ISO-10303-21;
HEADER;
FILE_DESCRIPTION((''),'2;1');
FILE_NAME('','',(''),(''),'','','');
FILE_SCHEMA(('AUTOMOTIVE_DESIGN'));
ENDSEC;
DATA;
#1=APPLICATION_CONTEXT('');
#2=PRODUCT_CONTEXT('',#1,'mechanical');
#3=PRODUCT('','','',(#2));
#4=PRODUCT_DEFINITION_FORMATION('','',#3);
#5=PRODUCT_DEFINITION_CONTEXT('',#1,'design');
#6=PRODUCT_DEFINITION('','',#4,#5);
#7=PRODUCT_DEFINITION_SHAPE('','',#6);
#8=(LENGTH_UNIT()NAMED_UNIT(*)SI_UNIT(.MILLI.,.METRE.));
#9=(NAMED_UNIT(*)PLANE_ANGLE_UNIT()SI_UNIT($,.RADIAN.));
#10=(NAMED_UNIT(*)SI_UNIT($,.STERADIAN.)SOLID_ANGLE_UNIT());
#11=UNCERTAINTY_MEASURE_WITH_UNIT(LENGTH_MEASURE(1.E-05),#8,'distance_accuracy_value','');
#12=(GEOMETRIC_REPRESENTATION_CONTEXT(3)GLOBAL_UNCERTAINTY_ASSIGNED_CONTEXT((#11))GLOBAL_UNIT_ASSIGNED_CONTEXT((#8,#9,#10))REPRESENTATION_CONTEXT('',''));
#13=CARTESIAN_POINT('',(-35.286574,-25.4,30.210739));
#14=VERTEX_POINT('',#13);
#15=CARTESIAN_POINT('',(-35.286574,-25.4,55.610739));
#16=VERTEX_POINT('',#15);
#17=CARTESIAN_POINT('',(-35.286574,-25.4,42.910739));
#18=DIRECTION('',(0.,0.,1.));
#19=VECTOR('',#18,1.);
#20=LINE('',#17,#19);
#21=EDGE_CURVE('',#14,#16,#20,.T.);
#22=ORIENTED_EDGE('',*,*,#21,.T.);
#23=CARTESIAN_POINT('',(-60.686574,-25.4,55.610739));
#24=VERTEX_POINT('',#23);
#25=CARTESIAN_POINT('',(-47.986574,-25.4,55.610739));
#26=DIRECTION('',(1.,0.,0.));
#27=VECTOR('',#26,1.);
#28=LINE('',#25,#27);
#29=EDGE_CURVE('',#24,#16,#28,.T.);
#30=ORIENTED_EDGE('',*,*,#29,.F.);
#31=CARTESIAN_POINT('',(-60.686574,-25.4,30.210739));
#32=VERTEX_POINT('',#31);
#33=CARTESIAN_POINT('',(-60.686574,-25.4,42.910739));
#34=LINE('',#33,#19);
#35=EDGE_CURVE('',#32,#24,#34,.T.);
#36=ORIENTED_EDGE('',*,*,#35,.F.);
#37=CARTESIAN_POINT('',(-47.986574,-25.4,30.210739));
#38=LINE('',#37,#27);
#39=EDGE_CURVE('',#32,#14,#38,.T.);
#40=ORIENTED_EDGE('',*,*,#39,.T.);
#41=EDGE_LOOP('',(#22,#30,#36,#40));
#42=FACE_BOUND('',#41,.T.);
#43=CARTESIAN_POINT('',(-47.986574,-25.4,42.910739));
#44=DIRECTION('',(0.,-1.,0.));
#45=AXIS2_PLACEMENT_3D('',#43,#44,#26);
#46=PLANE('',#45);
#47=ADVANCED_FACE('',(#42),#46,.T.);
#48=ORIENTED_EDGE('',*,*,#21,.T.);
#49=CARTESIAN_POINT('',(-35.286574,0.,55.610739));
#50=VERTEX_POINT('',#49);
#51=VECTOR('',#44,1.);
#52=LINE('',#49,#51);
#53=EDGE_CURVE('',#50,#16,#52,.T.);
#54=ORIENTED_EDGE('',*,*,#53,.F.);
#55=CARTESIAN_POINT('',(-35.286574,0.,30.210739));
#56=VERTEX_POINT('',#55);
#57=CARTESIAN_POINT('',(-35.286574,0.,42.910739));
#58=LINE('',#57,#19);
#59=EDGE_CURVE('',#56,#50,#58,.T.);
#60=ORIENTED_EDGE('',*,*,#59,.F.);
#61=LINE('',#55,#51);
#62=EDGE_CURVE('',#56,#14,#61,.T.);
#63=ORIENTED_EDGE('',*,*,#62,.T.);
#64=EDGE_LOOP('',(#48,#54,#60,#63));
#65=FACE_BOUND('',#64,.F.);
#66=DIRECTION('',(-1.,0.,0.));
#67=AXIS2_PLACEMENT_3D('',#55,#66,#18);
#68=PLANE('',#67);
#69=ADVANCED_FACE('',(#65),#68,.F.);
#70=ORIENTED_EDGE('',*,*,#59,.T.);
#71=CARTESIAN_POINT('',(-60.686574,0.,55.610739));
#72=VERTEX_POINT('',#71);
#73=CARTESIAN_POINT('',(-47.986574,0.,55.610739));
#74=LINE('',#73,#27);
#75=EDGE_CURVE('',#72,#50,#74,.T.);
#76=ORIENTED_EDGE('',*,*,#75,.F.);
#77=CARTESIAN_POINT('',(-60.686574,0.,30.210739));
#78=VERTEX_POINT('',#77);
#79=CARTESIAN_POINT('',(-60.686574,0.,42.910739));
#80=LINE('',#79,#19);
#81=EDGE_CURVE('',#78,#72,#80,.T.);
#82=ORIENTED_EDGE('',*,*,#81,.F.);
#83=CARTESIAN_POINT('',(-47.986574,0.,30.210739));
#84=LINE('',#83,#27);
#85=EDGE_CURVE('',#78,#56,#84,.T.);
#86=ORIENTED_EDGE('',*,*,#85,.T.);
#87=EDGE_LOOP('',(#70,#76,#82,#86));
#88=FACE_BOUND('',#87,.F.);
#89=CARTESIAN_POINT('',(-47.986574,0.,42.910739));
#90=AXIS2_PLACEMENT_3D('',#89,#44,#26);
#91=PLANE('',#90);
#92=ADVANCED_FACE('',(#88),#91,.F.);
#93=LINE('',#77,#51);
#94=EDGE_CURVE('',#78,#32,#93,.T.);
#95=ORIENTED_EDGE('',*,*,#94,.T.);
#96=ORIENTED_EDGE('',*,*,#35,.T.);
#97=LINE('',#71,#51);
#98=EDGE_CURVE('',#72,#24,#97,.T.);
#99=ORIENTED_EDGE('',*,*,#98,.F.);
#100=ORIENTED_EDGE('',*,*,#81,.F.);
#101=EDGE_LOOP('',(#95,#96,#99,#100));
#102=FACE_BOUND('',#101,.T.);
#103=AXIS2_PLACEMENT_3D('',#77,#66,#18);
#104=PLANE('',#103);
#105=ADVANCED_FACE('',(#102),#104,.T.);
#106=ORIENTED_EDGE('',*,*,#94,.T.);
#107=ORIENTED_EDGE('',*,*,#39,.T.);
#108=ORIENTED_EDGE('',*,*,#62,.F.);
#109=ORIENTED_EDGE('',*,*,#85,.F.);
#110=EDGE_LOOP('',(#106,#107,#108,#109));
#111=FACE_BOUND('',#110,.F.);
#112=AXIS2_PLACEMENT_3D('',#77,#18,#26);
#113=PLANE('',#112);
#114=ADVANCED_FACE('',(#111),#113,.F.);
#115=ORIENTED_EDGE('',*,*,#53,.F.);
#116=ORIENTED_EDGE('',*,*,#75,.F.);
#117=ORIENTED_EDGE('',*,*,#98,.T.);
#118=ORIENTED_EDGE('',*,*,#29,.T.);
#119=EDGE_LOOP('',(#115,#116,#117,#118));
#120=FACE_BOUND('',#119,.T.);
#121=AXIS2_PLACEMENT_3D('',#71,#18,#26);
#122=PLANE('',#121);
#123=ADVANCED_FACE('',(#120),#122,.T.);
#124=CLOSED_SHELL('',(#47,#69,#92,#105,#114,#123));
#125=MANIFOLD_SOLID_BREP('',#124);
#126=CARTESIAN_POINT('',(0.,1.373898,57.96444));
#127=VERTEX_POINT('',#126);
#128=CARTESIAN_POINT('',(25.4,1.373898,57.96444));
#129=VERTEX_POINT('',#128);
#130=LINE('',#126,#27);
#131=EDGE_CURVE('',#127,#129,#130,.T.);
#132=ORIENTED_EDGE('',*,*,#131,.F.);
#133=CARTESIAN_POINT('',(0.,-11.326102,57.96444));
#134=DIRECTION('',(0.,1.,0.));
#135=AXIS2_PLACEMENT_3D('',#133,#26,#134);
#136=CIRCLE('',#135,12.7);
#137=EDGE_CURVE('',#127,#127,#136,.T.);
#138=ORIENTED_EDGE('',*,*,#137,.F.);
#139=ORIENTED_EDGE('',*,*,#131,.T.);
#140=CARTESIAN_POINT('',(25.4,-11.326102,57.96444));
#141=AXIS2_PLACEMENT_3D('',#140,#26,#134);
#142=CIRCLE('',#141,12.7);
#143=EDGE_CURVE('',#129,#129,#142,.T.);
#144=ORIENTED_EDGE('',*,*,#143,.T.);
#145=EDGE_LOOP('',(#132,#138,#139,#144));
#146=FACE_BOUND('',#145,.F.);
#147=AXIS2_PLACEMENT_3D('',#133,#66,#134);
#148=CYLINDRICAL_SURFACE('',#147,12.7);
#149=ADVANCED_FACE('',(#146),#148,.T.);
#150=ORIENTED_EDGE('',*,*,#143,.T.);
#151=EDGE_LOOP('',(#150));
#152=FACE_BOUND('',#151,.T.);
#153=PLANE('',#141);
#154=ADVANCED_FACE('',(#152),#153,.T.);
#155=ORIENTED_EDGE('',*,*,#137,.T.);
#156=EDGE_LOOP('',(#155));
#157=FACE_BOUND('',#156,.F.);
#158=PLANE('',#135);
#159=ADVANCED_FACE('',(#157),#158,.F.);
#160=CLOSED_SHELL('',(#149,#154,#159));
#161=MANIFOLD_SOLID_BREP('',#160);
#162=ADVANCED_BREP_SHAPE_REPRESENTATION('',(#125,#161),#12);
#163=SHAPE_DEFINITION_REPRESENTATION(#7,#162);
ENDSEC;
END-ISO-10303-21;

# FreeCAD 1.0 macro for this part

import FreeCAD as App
import Part
import Sketcher
Q = App.Units.Quantity


def add_polygon(sketch, points):
    """Adds a closed chain of lines whose ends are joined by coincident constraints."""
    first, n = sketch.GeometryCount, len(points)
    for a, b in zip(points, points[1:] + points[:1]):
        sketch.addGeometry(Part.LineSegment(App.Vector(*a, 0), App.Vector(*b, 0)), False)
    for i in range(n):
        sketch.addConstraint(Sketcher.Constraint("Coincident", first + i, 2, first + (i + 1) % n, 1))

doc = App.newDocument("Part")
params = doc.addObject("Spreadsheet::Sheet", "Params")
for row, (alias, value) in enumerate([
    ("sketch1_width", "1 in"),
    ("pad1_length", "1 in"),
    ("sketch2_diameter", "1 in"),
    ("pad2_length", "1 in"),
], start=1):
    params.set(f"A{row}", alias)
    params.set(f"B{row}", "=" + value)
    params.setAlias(f"B{row}", alias)

body = doc.addObject("PartDesign::Body", "Body")

sketch1 = body.newObject("Sketcher::SketchObject", "Sketch")
sketch1.AttachmentSupport = (doc.getObject("XZ_Plane"), [""])
sketch1.MapMode = "FlatFace"
add_polygon(sketch1, [(-60.686574, 55.610739), (-60.686574, 30.210739), (-35.286574, 30.210739), (-35.286574, 55.610739)])
sketch1.addConstraint([
    Sketcher.Constraint("Vertical", 0),
    Sketcher.Constraint("Horizontal", 1),
    Sketcher.Constraint("Vertical", 2),
    Sketcher.Constraint("Horizontal", 3),
    Sketcher.Constraint("Equal", 3, 0),
    Sketcher.Constraint("DistanceX", 1, 1, 1, 2, Q("1 in")),
    Sketcher.Constraint("DistanceY", -1, 1, 0, 2, 30.210739),
    Sketcher.Constraint("DistanceX", 0, 2, -1, 1, 60.686574),
])
sketch1.setExpression("Constraints[9]", "Params.sketch1_width")
pad1 = body.newObject("PartDesign::Pad", "Pad")
pad1.Profile = sketch1
pad1.setExpression("Length", "Params.pad1_length")
body2 = doc.addObject("PartDesign::Body", "Body001")

sketch2 = body2.newObject("Sketcher::SketchObject", "Sketch001")
sketch2.AttachmentSupport = (doc.getObject("YZ_Plane001"), [""])
sketch2.MapMode = "FlatFace"
sketch2.addGeometry(Part.Circle(App.Vector(-11.326102, 57.96444, 0), App.Vector(0, 0, 1), 12.7), False)
sketch2.addConstraint([
    Sketcher.Constraint("Diameter", 0, Q("1 in")),
    Sketcher.Constraint("DistanceY", -1, 1, 0, 3, 57.96444),
    Sketcher.Constraint("DistanceX", 0, 3, -1, 1, 11.326102),
])
sketch2.setExpression("Constraints[0]", "Params.sketch2_diameter")
pad2 = body2.newObject("PartDesign::Pad", "Pad001")
pad2.Profile = sketch2
pad2.setExpression("Length", "Params.pad2_length")

doc.recompute()
